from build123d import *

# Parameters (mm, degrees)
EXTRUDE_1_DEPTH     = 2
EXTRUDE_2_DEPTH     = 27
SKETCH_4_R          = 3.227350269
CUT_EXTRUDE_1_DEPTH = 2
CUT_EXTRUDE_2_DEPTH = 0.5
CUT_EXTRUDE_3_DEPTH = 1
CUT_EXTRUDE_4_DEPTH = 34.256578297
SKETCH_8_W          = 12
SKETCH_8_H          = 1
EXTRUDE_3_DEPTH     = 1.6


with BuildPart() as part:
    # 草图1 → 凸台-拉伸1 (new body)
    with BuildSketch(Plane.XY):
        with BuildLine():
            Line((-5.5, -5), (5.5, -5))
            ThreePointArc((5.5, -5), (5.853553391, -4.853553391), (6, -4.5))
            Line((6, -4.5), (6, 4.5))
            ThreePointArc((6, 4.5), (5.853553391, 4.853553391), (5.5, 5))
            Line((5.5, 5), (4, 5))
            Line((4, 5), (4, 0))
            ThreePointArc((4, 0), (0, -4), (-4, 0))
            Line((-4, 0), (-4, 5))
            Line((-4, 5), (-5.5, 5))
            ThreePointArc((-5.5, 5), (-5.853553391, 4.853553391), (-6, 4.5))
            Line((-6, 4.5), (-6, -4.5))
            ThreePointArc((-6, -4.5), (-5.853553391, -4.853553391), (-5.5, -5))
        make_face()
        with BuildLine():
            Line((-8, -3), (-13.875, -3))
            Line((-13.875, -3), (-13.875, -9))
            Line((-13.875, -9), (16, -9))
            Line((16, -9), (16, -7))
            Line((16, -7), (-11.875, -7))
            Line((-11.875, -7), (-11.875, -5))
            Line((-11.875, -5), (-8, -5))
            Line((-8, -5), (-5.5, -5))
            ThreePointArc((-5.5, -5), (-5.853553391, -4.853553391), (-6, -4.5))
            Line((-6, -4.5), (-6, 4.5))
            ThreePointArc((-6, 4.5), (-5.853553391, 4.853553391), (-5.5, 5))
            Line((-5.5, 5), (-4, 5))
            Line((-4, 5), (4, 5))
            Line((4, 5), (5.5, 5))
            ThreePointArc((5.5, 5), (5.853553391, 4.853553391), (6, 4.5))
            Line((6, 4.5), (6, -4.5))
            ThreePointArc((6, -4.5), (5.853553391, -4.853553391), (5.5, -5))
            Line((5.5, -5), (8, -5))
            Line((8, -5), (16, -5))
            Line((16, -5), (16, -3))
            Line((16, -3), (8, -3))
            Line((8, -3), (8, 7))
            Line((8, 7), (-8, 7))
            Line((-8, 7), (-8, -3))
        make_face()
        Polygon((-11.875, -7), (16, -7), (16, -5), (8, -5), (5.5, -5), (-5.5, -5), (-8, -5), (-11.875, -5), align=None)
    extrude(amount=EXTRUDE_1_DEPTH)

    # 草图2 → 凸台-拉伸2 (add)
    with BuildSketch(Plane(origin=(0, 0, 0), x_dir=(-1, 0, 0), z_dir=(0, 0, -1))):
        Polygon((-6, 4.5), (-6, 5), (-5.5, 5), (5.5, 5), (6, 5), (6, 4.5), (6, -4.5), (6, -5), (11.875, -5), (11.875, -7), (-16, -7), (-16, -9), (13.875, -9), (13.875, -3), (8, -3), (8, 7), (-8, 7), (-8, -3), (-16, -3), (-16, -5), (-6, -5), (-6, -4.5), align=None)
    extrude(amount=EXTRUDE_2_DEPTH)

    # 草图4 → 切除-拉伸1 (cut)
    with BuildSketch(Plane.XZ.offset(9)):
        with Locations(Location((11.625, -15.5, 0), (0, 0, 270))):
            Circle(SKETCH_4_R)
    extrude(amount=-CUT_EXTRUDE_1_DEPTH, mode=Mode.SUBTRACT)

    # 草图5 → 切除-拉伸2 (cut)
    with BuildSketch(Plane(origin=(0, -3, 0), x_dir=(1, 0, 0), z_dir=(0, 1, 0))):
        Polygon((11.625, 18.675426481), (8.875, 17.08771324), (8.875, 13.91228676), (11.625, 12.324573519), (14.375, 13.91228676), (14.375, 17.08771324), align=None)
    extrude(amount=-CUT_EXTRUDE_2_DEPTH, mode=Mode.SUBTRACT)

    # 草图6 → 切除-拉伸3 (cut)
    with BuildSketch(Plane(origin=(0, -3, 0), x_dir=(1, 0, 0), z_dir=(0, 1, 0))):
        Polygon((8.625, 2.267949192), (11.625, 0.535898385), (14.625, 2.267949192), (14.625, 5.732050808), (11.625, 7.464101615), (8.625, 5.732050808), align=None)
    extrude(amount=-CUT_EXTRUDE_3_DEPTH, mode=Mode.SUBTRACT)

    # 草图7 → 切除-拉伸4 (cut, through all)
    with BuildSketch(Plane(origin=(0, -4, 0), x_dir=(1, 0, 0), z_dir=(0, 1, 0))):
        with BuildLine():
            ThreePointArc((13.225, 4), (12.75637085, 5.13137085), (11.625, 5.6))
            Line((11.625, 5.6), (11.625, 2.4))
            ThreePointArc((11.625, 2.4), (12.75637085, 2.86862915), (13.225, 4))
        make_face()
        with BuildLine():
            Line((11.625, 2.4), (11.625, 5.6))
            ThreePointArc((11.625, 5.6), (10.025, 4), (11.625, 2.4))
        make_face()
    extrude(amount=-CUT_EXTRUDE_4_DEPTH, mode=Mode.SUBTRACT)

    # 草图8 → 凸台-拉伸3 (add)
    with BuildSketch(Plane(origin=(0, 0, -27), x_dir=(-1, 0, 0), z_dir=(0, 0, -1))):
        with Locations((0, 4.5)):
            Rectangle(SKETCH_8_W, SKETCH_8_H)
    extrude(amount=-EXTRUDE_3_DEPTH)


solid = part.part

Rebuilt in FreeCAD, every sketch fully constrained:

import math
import FreeCAD as App
import Part
import Sketcher
from FreeCAD import Vector
Q = App.Units.Quantity

doc = App.newDocument("Part")
body = doc.addObject("PartDesign::Body", "Body")

# Sketch on XY plane
sketch1 = doc.addObject("Sketcher::SketchObject", "Sketch")
body.addObject(sketch1)
sketch1.AttachmentSupport = (doc.XY_Plane, [""])
sketch1.MapMode = "FlatFace"
sketch1.addGeometry(Part.LineSegment(Vector(16, -3, 0), Vector(8, -3, 0)), False)
sketch1.addGeometry(Part.LineSegment(Vector(8, -3, 0), Vector(8, 7, 0)), False)
sketch1.addGeometry(Part.LineSegment(Vector(8, 7, 0), Vector(-8, 7, 0)), False)
sketch1.addGeometry(Part.LineSegment(Vector(-8, 7, 0), Vector(-8, -3, 0)), False)
sketch1.addGeometry(Part.LineSegment(Vector(-8, -3, 0), Vector(-13.9, -3, 0)), False)
sketch1.addGeometry(Part.LineSegment(Vector(-13.9, -3, 0), Vector(-13.9, -9, 0)), False)
sketch1.addGeometry(Part.LineSegment(Vector(-13.9, -9, 0), Vector(16, -9, 0)), False)
sketch1.addGeometry(Part.LineSegment(Vector(16, -9, 0), Vector(16, -3, 0)), False)
sketch1.addGeometry(Part.LineSegment(Vector(4, 5, 0), Vector(4, 0, 0)), False)
sketch1.addGeometry(Part.ArcOfCircle(Part.Circle(Vector(0, 0, 0), Vector(0, 0, 1), 4), math.radians(180), math.radians(360)), False)
sketch1.addGeometry(Part.LineSegment(Vector(-4, 0, 0), Vector(-4, 5, 0)), False)
sketch1.addGeometry(Part.LineSegment(Vector(-4, 5, 0), Vector(4, 5, 0)), False)
sketch1.addConstraint(Sketcher.Constraint("Coincident", 0, 2, 1, 1))
sketch1.addConstraint(Sketcher.Constraint("Coincident", 1, 2, 2, 1))
sketch1.addConstraint(Sketcher.Constraint("Coincident", 2, 2, 3, 1))
sketch1.addConstraint(Sketcher.Constraint("Coincident", 3, 2, 4, 1))
sketch1.addConstraint(Sketcher.Constraint("Coincident", 4, 2, 5, 1))
sketch1.addConstraint(Sketcher.Constraint("Coincident", 5, 2, 6, 1))
sketch1.addConstraint(Sketcher.Constraint("Coincident", 6, 2, 7, 1))
sketch1.addConstraint(Sketcher.Constraint("Coincident", 7, 2, 0, 1))
sketch1.addConstraint(Sketcher.Constraint("Tangent", 8, 2, 9, 2))
sketch1.addConstraint(Sketcher.Constraint("Tangent", 9, 1, 10, 1))
sketch1.addConstraint(Sketcher.Constraint("Coincident", 10, 2, 11, 1))
sketch1.addConstraint(Sketcher.Constraint("Coincident", 11, 2, 8, 1))
sketch1.addConstraint(Sketcher.Constraint("Horizontal", 0))
sketch1.addConstraint(Sketcher.Constraint("Vertical", 1))
sketch1.addConstraint(Sketcher.Constraint("Horizontal", 2))
sketch1.addConstraint(Sketcher.Constraint("Vertical", 3))
sketch1.addConstraint(Sketcher.Constraint("Horizontal", 4))
sketch1.addConstraint(Sketcher.Constraint("Vertical", 5))
sketch1.addConstraint(Sketcher.Constraint("Horizontal", 6))
sketch1.addConstraint(Sketcher.Constraint("Vertical", 7))
sketch1.addConstraint(Sketcher.Constraint("Vertical", 8))
sketch1.addConstraint(Sketcher.Constraint("Vertical", 10))
sketch1.addConstraint(Sketcher.Constraint("Horizontal", 11))
sketch1.addConstraint(Sketcher.Constraint("Coincident", 9, 3, -1, 1))
sketch1.addConstraint(Sketcher.Constraint("Symmetric", 0, 2, 3, 2, -2))
sketch1.addConstraint(Sketcher.Constraint("Equal", 0, 11))
sketch1.addConstraint(Sketcher.Constraint("Radius", 9, 4.0))
sketch1.addConstraint(Sketcher.Constraint("DistanceX", 2, 2, 2, 1, 16.0))
sketch1.addConstraint(Sketcher.Constraint("DistanceY", 1, 1, 1, 2, 10.0))
sketch1.addConstraint(Sketcher.Constraint("DistanceY", 5, 2, 5, 1, 6.0))
sketch1.addConstraint(Sketcher.Constraint("DistanceY", 8, 2, 8, 1, 5.0))
sketch1.addConstraint(Sketcher.Constraint("DistanceY", 0, 2, -1, 1, 3.0))
sketch1.addConstraint(Sketcher.Constraint("DistanceX", 4, 2, 4, 1, 5.875))
pad1 = doc.addObject("PartDesign::Pad", "Pad")
body.addObject(pad1)
pad1.Profile = sketch1
pad1.Length = 2

# Sketch on XY plane
sketch2 = doc.addObject("Sketcher::SketchObject", "Sketch001")
body.addObject(sketch2)
sketch2.AttachmentSupport = (doc.XY_Plane, [""])
sketch2.MapMode = "FlatFace"
sketch2.addGeometry(Part.LineSegment(Vector(6, 5, 0), Vector(-6, 5, 0)), False)
sketch2.addGeometry(Part.LineSegment(Vector(-6, 5, 0), Vector(-6, -5, 0)), False)
sketch2.addGeometry(Part.LineSegment(Vector(-6, -5, 0), Vector(-11.9, -5, 0)), False)
sketch2.addGeometry(Part.LineSegment(Vector(-11.9, -5, 0), Vector(-11.9, -7, 0)), False)
sketch2.addGeometry(Part.LineSegment(Vector(-11.9, -7, 0), Vector(16, -7, 0)), False)
sketch2.addGeometry(Part.LineSegment(Vector(16, -7, 0), Vector(16, -9, 0)), False)
sketch2.addGeometry(Part.LineSegment(Vector(16, -9, 0), Vector(-13.9, -9, 0)), False)
sketch2.addGeometry(Part.LineSegment(Vector(-13.9, -9, 0), Vector(-13.9, -3, 0)), False)
sketch2.addGeometry(Part.LineSegment(Vector(-13.9, -3, 0), Vector(-8, -3, 0)), False)
sketch2.addGeometry(Part.LineSegment(Vector(-8, -3, 0), Vector(-8, 7, 0)), False)
sketch2.addGeometry(Part.LineSegment(Vector(-8, 7, 0), Vector(8, 7, 0)), False)
sketch2.addGeometry(Part.LineSegment(Vector(8, 7, 0), Vector(8, -3, 0)), False)
sketch2.addGeometry(Part.LineSegment(Vector(8, -3, 0), Vector(16, -3, 0)), False)
sketch2.addGeometry(Part.LineSegment(Vector(16, -3, 0), Vector(16, -5, 0)), False)
sketch2.addGeometry(Part.LineSegment(Vector(16, -5, 0), Vector(6, -5, 0)), False)
sketch2.addGeometry(Part.LineSegment(Vector(6, -5, 0), Vector(6, 5, 0)), False)
sketch2.addConstraint(Sketcher.Constraint("Coincident", 0, 2, 1, 1))
sketch2.addConstraint(Sketcher.Constraint("Coincident", 1, 2, 2, 1))
sketch2.addConstraint(Sketcher.Constraint("Coincident", 2, 2, 3, 1))
sketch2.addConstraint(Sketcher.Constraint("Coincident", 3, 2, 4, 1))
sketch2.addConstraint(Sketcher.Constraint("Coincident", 4, 2, 5, 1))
sketch2.addConstraint(Sketcher.Constraint("Coincident", 5, 2, 6, 1))
sketch2.addConstraint(Sketcher.Constraint("Coincident", 6, 2, 7, 1))
sketch2.addConstraint(Sketcher.Constraint("Coincident", 7, 2, 8, 1))
sketch2.addConstraint(Sketcher.Constraint("Coincident", 8, 2, 9, 1))
sketch2.addConstraint(Sketcher.Constraint("Coincident", 9, 2, 10, 1))
sketch2.addConstraint(Sketcher.Constraint("Coincident", 10, 2, 11, 1))
sketch2.addConstraint(Sketcher.Constraint("Coincident", 11, 2, 12, 1))
sketch2.addConstraint(Sketcher.Constraint("Coincident", 12, 2, 13, 1))
sketch2.addConstraint(Sketcher.Constraint("Coincident", 13, 2, 14, 1))
sketch2.addConstraint(Sketcher.Constraint("Coincident", 14, 2, 15, 1))
sketch2.addConstraint(Sketcher.Constraint("Coincident", 15, 2, 0, 1))
sketch2.addConstraint(Sketcher.Constraint("Horizontal", 0))
sketch2.addConstraint(Sketcher.Constraint("Vertical", 1))
sketch2.addConstraint(Sketcher.Constraint("Horizontal", 2))
sketch2.addConstraint(Sketcher.Constraint("Vertical", 3))
sketch2.addConstraint(Sketcher.Constraint("Horizontal", 4))
sketch2.addConstraint(Sketcher.Constraint("Vertical", 5))
sketch2.addConstraint(Sketcher.Constraint("Horizontal", 6))
sketch2.addConstraint(Sketcher.Constraint("Vertical", 7))
sketch2.addConstraint(Sketcher.Constraint("Horizontal", 8))
sketch2.addConstraint(Sketcher.Constraint("Vertical", 9))
sketch2.addConstraint(Sketcher.Constraint("Horizontal", 10))
sketch2.addConstraint(Sketcher.Constraint("Vertical", 11))
sketch2.addConstraint(Sketcher.Constraint("Horizontal", 12))
sketch2.addConstraint(Sketcher.Constraint("Vertical", 13))
sketch2.addConstraint(Sketcher.Constraint("Horizontal", 14))
sketch2.addConstraint(Sketcher.Constraint("Vertical", 15))
sketch2.addConstraint(Sketcher.Constraint("Symmetric", 0, 2, 14, 2, -1, 1))
sketch2.addConstraint(Sketcher.Constraint("Symmetric", 8, 2, 11, 2, -2))
sketch2.addConstraint(Sketcher.Constraint("Horizontal", 2, 2, 13, 2))
sketch2.addConstraint(Sketcher.Constraint("Vertical", 5, 2, 12, 2))
sketch2.addConstraint(Sketcher.Constraint("Equal", 2, 8))
sketch2.addConstraint(Sketcher.Constraint("Equal", 14, 1))
sketch2.addConstraint(Sketcher.Constraint("Equal", 3, 5))
sketch2.addConstraint(Sketcher.Constraint("Equal", 1, 9))
sketch2.addConstraint(Sketcher.Constraint("Equal", 5, 13))
sketch2.addConstraint(Sketcher.Constraint("DistanceX", 0, 2, 0, 1, 12.0))
sketch2.addConstraint(Sketcher.Constraint("DistanceX", 10, 1, 10, 2, 16.0))
sketch2.addConstraint(Sketcher.Constraint("DistanceX", 12, 1, 12, 2, 8.0))
sketch2.addConstraint(Sketcher.Constraint("DistanceY", 3, 2, 3, 1, 2.0))
sketch2.addConstraint(Sketcher.Constraint("DistanceX", 2, 2, 2, 1, 5.875))
pad2 = doc.addObject("PartDesign::Pad", "Pad001")
body.addObject(pad2)
pad2.Profile = sketch2
pad2.Length = 27
pad2.Reversed = True

# Sketch on XZ plane
sketch3 = doc.addObject("Sketcher::SketchObject", "Sketch002")
body.addObject(sketch3)
sketch3.AttachmentSupport = (doc.XZ_Plane, [""])
sketch3.MapMode = "FlatFace"
sketch3.AttachmentOffset = App.Placement(Vector(0, 0, 9), App.Rotation())
sketch3.addGeometry(Part.Circle(Vector(11.6, -15.5, 0), Vector(0, 0, 1), 3.2), False)
sketch3.addConstraint(Sketcher.Constraint("Diameter", 0, 6.454701))
sketch3.addConstraint(Sketcher.Constraint("DistanceY", 0, 3, -1, 1, 15.5))
sketch3.addConstraint(Sketcher.Constraint("DistanceX", -1, 1, 0, 3, 11.625))
pocket1 = doc.addObject("PartDesign::Pocket", "Pocket")
body.addObject(pocket1)
pocket1.Profile = sketch3
pocket1.Length = 2

# Sketch on XZ plane
sketch4 = doc.addObject("Sketcher::SketchObject", "Sketch003")
body.addObject(sketch4)
sketch4.AttachmentSupport = (doc.XZ_Plane, [""])
sketch4.MapMode = "FlatFace"
sketch4.AttachmentOffset = App.Placement(Vector(0, 0, 3), App.Rotation())
sketch4.addGeometry(Part.LineSegment(Vector(11.6, -18.7, 0), Vector(8.9, -17.1, 0)), False)
sketch4.addGeometry(Part.LineSegment(Vector(8.9, -17.1, 0), Vector(8.9, -13.9, 0)), False)
sketch4.addGeometry(Part.LineSegment(Vector(8.9, -13.9, 0), Vector(11.6, -12.3, 0)), False)
sketch4.addGeometry(Part.LineSegment(Vector(11.6, -12.3, 0), Vector(14.4, -13.9, 0)), False)
sketch4.addGeometry(Part.LineSegment(Vector(14.4, -13.9, 0), Vector(14.4, -17.1, 0)), False)
sketch4.addGeometry(Part.LineSegment(Vector(14.4, -17.1, 0), Vector(11.6, -18.7, 0)), False)
sketch4.addConstraint(Sketcher.Constraint("Coincident", 0, 2, 1, 1))
sketch4.addConstraint(Sketcher.Constraint("Coincident", 1, 2, 2, 1))
sketch4.addConstraint(Sketcher.Constraint("Coincident", 2, 2, 3, 1))
sketch4.addConstraint(Sketcher.Constraint("Coincident", 3, 2, 4, 1))
sketch4.addConstraint(Sketcher.Constraint("Coincident", 4, 2, 5, 1))
sketch4.addConstraint(Sketcher.Constraint("Coincident", 5, 2, 0, 1))
sketch4.addConstraint(Sketcher.Constraint("Vertical", 1))
sketch4.addConstraint(Sketcher.Constraint("Vertical", 4))
sketch4.addConstraint(Sketcher.Constraint("Parallel", 0, 3))
sketch4.addConstraint(Sketcher.Constraint("Parallel", 2, 5))
sketch4.addConstraint(Sketcher.Constraint("Horizontal", 1, 2, 3, 2))
sketch4.addConstraint(Sketcher.Constraint("Horizontal", 0, 2, 4, 2))
sketch4.addConstraint(Sketcher.Constraint("Vertical", 2, 2, 5, 2))
sketch4.addConstraint(Sketcher.Constraint("Angle", 0, Q("150 deg")))
sketch4.addConstraint(Sketcher.Constraint("DistanceX", 1, 2, 3, 2, 5.5))
sketch4.addConstraint(Sketcher.Constraint("DistanceX", -1, 1, 0, 2, 8.875))
sketch4.addConstraint(Sketcher.Constraint("DistanceY", 1, 1, 1, 2, 3.175426))
sketch4.addConstraint(Sketcher.Constraint("DistanceY", 0, 2, -1, 1, 17.087713))
pocket2 = doc.addObject("PartDesign::Pocket", "Pocket001")
body.addObject(pocket2)
pocket2.Profile = sketch4
pocket2.Length = 0.5
pocket2.Reversed = True

# Sketch on XZ plane
sketch5 = doc.addObject("Sketcher::SketchObject", "Sketch004")
body.addObject(sketch5)
sketch5.AttachmentSupport = (doc.XZ_Plane, [""])
sketch5.MapMode = "FlatFace"
sketch5.AttachmentOffset = App.Placement(Vector(0, 0, 3), App.Rotation())
sketch5.addGeometry(Part.LineSegment(Vector(8.6, -2.3, 0), Vector(11.6, -0.5, 0)), False)
sketch5.addGeometry(Part.LineSegment(Vector(11.6, -0.5, 0), Vector(14.6, -2.3, 0)), False)
sketch5.addGeometry(Part.LineSegment(Vector(14.6, -2.3, 0), Vector(14.6, -5.7, 0)), False)
sketch5.addGeometry(Part.LineSegment(Vector(14.6, -5.7, 0), Vector(11.6, -7.5, 0)), False)
sketch5.addGeometry(Part.LineSegment(Vector(11.6, -7.5, 0), Vector(8.6, -5.7, 0)), False)
sketch5.addGeometry(Part.LineSegment(Vector(8.6, -5.7, 0), Vector(8.6, -2.3, 0)), False)
sketch5.addConstraint(Sketcher.Constraint("Coincident", 0, 2, 1, 1))
sketch5.addConstraint(Sketcher.Constraint("Coincident", 1, 2, 2, 1))
sketch5.addConstraint(Sketcher.Constraint("Coincident", 2, 2, 3, 1))
sketch5.addConstraint(Sketcher.Constraint("Coincident", 3, 2, 4, 1))
sketch5.addConstraint(Sketcher.Constraint("Coincident", 4, 2, 5, 1))
sketch5.addConstraint(Sketcher.Constraint("Coincident", 5, 2, 0, 1))
sketch5.addConstraint(Sketcher.Constraint("Vertical", 2))
sketch5.addConstraint(Sketcher.Constraint("Vertical", 5))
sketch5.addConstraint(Sketcher.Constraint("Parallel", 0, 3))
sketch5.addConstraint(Sketcher.Constraint("Parallel", 1, 4))
sketch5.addConstraint(Sketcher.Constraint("Horizontal", 2, 2, 4, 2))
sketch5.addConstraint(Sketcher.Constraint("Horizontal", 1, 2, 5, 2))
sketch5.addConstraint(Sketcher.Constraint("Vertical", 0, 2, 3, 2))
sketch5.addConstraint(Sketcher.Constraint("Angle", 0, Q("30 deg")))
sketch5.addConstraint(Sketcher.Constraint("DistanceX", 0, 2, 1, 2, 3.0))
sketch5.addConstraint(Sketcher.Constraint("DistanceY", 2, 2, 2, 1, 3.464102))
sketch5.addConstraint(Sketcher.Constraint("DistanceX", -1, 1, 0, 2, 11.625))
sketch5.addConstraint(Sketcher.Constraint("DistanceY", 0, 2, -1, 1, 0.535898))
pocket3 = doc.addObject("PartDesign::Pocket", "Pocket002")
body.addObject(pocket3)
pocket3.Profile = sketch5
pocket3.Length = 1
pocket3.Reversed = True

# Sketch on XZ plane
sketch6 = doc.addObject("Sketcher::SketchObject", "Sketch005")
body.addObject(sketch6)
sketch6.AttachmentSupport = (doc.XZ_Plane, [""])
sketch6.MapMode = "FlatFace"
sketch6.AttachmentOffset = App.Placement(Vector(0, 0, 4), App.Rotation())
sketch6.addGeometry(Part.ArcOfCircle(Part.Circle(Vector(11.6, -4, 0), Vector(0, 0, 1), 1.6), math.radians(-90), math.radians(0)), False)
sketch6.addGeometry(Part.ArcOfCircle(Part.Circle(Vector(11.6, -4, 0), Vector(0, 0, 1), 1.6), math.radians(90), math.radians(270)), False)
sketch6.addGeometry(Part.ArcOfCircle(Part.Circle(Vector(11.6, -4, 0), Vector(0, 0, 1), 1.6), math.radians(0), math.radians(90)), False)
sketch6.addConstraint(Sketcher.Constraint("Tangent", 0, 1, 1, 2))
sketch6.addConstraint(Sketcher.Constraint("Tangent", 1, 1, 2, 2))
sketch6.addConstraint(Sketcher.Constraint("Tangent", 2, 1, 0, 2))
sketch6.addConstraint(Sketcher.Constraint("Horizontal", 1, 3, 2, 1))
sketch6.addConstraint(Sketcher.Constraint("Vertical", 2, 3, 0, 1))
sketch6.addConstraint(Sketcher.Constraint("Vertical", 0, 1, 1, 1))
sketch6.addConstraint(Sketcher.Constraint("Radius", 0, 1.6))
sketch6.addConstraint(Sketcher.Constraint("DistanceY", 0, 3, -1, 1, 4.0))
sketch6.addConstraint(Sketcher.Constraint("DistanceX", -1, 1, 0, 3, 11.625))
pocket4 = doc.addObject("PartDesign::Pocket", "Pocket003")
body.addObject(pocket4)
pocket4.Profile = sketch6
pocket4.Type = "ThroughAll"
pocket4.Reversed = True

# Sketch on XY plane
sketch7 = doc.addObject("Sketcher::SketchObject", "Sketch006")
body.addObject(sketch7)
sketch7.AttachmentSupport = (doc.XY_Plane, [""])
sketch7.MapMode = "FlatFace"
sketch7.AttachmentOffset = App.Placement(Vector(0, 0, -27), App.Rotation())
sketch7.addGeometry(Part.LineSegment(Vector(6, 5, 0), Vector(6, 4, 0)), False)
sketch7.addGeometry(Part.LineSegment(Vector(6, 4, 0), Vector(-6, 4, 0)), False)
sketch7.addGeometry(Part.LineSegment(Vector(-6, 4, 0), Vector(-6, 5, 0)), False)
sketch7.addGeometry(Part.LineSegment(Vector(-6, 5, 0), Vector(6, 5, 0)), False)
sketch7.addConstraint(Sketcher.Constraint("Coincident", 0, 2, 1, 1))
sketch7.addConstraint(Sketcher.Constraint("Coincident", 1, 2, 2, 1))
sketch7.addConstraint(Sketcher.Constraint("Coincident", 2, 2, 3, 1))
sketch7.addConstraint(Sketcher.Constraint("Coincident", 3, 2, 0, 1))
sketch7.addConstraint(Sketcher.Constraint("Vertical", 0))
sketch7.addConstraint(Sketcher.Constraint("Horizontal", 1))
sketch7.addConstraint(Sketcher.Constraint("Vertical", 2))
sketch7.addConstraint(Sketcher.Constraint("Horizontal", 3))
sketch7.addConstraint(Sketcher.Constraint("DistanceX", 1, 2, 1, 1, 12.0))
sketch7.addConstraint(Sketcher.Constraint("DistanceY", 0, 2, 0, 1, 1.0))
sketch7.addConstraint(Sketcher.Constraint("DistanceX", -1, 1, 0, 2, 6.0))
sketch7.addConstraint(Sketcher.Constraint("DistanceY", -1, 1, 0, 2, 4.0))
pad3 = doc.addObject("PartDesign::Pad", "Pad002")
body.addObject(pad3)
pad3.Profile = sketch7
pad3.Length = 1.6

doc.recompute()
